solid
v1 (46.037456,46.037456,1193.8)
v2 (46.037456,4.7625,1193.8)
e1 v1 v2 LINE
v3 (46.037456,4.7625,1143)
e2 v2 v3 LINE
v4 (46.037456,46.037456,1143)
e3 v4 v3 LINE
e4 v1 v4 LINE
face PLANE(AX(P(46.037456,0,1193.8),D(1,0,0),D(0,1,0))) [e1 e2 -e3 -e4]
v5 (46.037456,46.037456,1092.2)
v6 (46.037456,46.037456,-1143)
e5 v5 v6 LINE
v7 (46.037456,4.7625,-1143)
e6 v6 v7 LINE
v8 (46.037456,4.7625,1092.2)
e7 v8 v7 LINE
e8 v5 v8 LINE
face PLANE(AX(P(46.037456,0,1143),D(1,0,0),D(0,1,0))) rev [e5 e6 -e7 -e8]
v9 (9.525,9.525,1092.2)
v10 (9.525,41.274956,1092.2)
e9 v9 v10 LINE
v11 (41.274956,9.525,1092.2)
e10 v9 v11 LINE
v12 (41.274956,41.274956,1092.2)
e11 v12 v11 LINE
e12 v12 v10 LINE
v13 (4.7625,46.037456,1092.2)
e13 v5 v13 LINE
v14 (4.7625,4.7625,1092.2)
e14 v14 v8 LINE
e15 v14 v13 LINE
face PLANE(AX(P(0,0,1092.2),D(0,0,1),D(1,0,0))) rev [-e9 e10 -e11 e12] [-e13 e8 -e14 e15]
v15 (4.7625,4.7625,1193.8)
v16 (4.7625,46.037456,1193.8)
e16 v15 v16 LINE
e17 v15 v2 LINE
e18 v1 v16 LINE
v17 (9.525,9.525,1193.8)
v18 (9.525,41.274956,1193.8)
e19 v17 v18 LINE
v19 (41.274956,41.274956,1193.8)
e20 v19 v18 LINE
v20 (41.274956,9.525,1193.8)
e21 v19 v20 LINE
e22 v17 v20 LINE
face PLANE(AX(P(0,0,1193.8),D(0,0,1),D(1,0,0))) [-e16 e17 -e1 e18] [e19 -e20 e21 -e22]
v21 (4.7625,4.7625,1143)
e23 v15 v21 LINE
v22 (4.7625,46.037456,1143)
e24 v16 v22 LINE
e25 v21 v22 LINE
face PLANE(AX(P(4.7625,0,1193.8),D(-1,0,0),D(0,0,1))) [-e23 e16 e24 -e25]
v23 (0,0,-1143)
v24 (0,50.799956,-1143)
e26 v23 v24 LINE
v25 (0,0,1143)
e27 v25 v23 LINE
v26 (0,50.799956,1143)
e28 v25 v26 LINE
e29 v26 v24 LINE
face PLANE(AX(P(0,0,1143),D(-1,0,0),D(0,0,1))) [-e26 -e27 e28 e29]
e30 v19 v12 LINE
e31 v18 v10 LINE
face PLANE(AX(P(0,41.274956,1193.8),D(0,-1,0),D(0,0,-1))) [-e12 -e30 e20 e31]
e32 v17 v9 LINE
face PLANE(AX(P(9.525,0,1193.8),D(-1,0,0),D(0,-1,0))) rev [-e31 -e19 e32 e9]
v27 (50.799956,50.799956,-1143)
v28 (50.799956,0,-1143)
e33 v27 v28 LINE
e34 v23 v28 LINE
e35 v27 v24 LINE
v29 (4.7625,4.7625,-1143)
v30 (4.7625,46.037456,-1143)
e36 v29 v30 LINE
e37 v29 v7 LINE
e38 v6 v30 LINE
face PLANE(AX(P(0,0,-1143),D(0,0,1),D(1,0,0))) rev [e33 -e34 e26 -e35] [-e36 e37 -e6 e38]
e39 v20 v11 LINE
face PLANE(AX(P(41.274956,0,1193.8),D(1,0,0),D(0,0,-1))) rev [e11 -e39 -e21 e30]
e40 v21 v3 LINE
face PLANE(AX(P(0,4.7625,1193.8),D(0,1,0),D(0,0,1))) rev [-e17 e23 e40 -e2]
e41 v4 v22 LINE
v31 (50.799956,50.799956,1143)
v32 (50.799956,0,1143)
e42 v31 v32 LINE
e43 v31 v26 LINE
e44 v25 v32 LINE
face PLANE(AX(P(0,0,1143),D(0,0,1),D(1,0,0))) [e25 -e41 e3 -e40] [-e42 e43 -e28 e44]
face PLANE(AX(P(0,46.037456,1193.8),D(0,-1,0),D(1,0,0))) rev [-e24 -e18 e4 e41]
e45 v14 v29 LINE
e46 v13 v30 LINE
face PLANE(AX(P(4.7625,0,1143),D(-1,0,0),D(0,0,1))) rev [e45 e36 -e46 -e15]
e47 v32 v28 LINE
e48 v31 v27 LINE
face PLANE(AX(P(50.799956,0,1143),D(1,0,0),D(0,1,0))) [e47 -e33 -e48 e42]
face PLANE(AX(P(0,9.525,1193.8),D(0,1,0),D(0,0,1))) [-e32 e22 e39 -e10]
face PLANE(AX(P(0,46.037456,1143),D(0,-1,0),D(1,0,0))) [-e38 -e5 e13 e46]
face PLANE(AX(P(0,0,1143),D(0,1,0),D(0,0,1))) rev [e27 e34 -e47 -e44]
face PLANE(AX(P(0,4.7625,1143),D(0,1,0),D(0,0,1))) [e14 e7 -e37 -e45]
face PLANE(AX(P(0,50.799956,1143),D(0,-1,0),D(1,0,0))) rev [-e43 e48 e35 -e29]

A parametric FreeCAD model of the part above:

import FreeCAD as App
import Part
import Sketcher

V = App.Vector
Q = App.Units.Quantity


def add_polygon(sketch, points):
    """Adds a closed chain of lines whose ends are joined by coincident constraints."""
    first, n = sketch.GeometryCount, len(points)
    for a, b in zip(points, points[1:] + points[:1]):
        sketch.addGeometry(Part.LineSegment(App.Vector(*a, 0), App.Vector(*b, 0)), False)
    for i in range(n):
        sketch.addConstraint(Sketcher.Constraint("Coincident", first + i, 2, first + (i + 1) % n, 1))

doc = App.newDocument("Part")
body = doc.addObject("PartDesign::Body", "Body")

# Sketch on XY plane
sketch1 = body.newObject("Sketcher::SketchObject", "Sketch")
sketch1.AttachmentSupport = (doc.getObject("XY_Plane"), [""])
sketch1.MapMode = "FlatFace"
add_polygon(sketch1, [(0, 50.799956), (0, 0), (50.799956, 0), (50.799956, 50.799956)])  # lines 0-3
add_polygon(sketch1, [(46.037456, 4.7625), (4.7625, 4.7625), (4.7625, 46.037456), (46.037456, 46.037456)])  # lines 4-7
sketch1.addConstraint([
    Sketcher.Constraint("Vertical", 0),
    Sketcher.Constraint("Horizontal", 1),
    Sketcher.Constraint("Vertical", 2),
    Sketcher.Constraint("Horizontal", 3),
    Sketcher.Constraint("Horizontal", 4),
    Sketcher.Constraint("Vertical", 5),
    Sketcher.Constraint("Horizontal", 6),
    Sketcher.Constraint("Vertical", 7),
    Sketcher.Constraint("Coincident", 0, 2, -1, 1),
    Sketcher.Constraint("Equal", 3, 0),
    Sketcher.Constraint("Equal", 6, 5),
    Sketcher.Constraint("DistanceX", -1, 1, 4, 2, Q("0.1875 in")),
    Sketcher.Constraint("DistanceY", -1, 1, 4, 2, Q("0.1875 in")),
    Sketcher.Constraint("DistanceY", 5, 2, 3, 2, Q("0.1875 in")),
    Sketcher.Constraint("DistanceX", 1, 1, 1, 2, Q("50.799956 mm")),
])
pad1 = body.newObject("PartDesign::Pad", "Pad")
pad1.Profile = sketch1
pad1.Length = Q("90 in")
pad1.Midplane = True

# Sketch on XY plane
sketch2 = body.newObject("Sketcher::SketchObject", "Sketch001")
sketch2.AttachmentSupport = (doc.getObject("XY_Plane"), [""])
sketch2.MapMode = "FlatFace"
sketch2.AttachmentOffset = App.Placement(V(0, 0, 45 * 25.4), App.Rotation())
add_polygon(sketch2, [(4.7625, 46.037456), (4.7625, 4.7625), (46.037456, 4.7625), (46.037456, 46.037456)])  # lines 0-3
add_polygon(sketch2, [(41.274956, 9.525), (9.525, 9.525), (9.525, 41.274956), (41.274956, 41.274956)])  # lines 4-7
sketch2.addConstraint([
    Sketcher.Constraint("Vertical", 0),
    Sketcher.Constraint("Horizontal", 1),
    Sketcher.Constraint("Vertical", 2),
    Sketcher.Constraint("Horizontal", 3),
    Sketcher.Constraint("Horizontal", 4),
    Sketcher.Constraint("Vertical", 5),
    Sketcher.Constraint("Horizontal", 6),
    Sketcher.Constraint("Vertical", 7),
    Sketcher.Constraint("Equal", 3, 0),
    Sketcher.Constraint("Equal", 6, 5),
    Sketcher.Constraint("DistanceX", -1, 1, 0, 2, Q("0.1875 in")),
    Sketcher.Constraint("DistanceY", -1, 1, 0, 2, Q("0.1875 in")),
    Sketcher.Constraint("DistanceX", -1, 1, 4, 2, Q("0.375 in")),
    Sketcher.Constraint("DistanceY", -1, 1, 4, 2, Q("0.375 in")),
    Sketcher.Constraint("DistanceY", 5, 2, 3, 2, Q("0.1875 in")),
    Sketcher.Constraint("DistanceX", 1, 1, 1, 2, Q("41.274956 mm")),
])
pad2 = body.newObject("PartDesign::Pad", "Pad001")
pad2.Profile = sketch2
pad2.Length = Q("4 in")
pad2.Midplane = True

doc.recompute()
